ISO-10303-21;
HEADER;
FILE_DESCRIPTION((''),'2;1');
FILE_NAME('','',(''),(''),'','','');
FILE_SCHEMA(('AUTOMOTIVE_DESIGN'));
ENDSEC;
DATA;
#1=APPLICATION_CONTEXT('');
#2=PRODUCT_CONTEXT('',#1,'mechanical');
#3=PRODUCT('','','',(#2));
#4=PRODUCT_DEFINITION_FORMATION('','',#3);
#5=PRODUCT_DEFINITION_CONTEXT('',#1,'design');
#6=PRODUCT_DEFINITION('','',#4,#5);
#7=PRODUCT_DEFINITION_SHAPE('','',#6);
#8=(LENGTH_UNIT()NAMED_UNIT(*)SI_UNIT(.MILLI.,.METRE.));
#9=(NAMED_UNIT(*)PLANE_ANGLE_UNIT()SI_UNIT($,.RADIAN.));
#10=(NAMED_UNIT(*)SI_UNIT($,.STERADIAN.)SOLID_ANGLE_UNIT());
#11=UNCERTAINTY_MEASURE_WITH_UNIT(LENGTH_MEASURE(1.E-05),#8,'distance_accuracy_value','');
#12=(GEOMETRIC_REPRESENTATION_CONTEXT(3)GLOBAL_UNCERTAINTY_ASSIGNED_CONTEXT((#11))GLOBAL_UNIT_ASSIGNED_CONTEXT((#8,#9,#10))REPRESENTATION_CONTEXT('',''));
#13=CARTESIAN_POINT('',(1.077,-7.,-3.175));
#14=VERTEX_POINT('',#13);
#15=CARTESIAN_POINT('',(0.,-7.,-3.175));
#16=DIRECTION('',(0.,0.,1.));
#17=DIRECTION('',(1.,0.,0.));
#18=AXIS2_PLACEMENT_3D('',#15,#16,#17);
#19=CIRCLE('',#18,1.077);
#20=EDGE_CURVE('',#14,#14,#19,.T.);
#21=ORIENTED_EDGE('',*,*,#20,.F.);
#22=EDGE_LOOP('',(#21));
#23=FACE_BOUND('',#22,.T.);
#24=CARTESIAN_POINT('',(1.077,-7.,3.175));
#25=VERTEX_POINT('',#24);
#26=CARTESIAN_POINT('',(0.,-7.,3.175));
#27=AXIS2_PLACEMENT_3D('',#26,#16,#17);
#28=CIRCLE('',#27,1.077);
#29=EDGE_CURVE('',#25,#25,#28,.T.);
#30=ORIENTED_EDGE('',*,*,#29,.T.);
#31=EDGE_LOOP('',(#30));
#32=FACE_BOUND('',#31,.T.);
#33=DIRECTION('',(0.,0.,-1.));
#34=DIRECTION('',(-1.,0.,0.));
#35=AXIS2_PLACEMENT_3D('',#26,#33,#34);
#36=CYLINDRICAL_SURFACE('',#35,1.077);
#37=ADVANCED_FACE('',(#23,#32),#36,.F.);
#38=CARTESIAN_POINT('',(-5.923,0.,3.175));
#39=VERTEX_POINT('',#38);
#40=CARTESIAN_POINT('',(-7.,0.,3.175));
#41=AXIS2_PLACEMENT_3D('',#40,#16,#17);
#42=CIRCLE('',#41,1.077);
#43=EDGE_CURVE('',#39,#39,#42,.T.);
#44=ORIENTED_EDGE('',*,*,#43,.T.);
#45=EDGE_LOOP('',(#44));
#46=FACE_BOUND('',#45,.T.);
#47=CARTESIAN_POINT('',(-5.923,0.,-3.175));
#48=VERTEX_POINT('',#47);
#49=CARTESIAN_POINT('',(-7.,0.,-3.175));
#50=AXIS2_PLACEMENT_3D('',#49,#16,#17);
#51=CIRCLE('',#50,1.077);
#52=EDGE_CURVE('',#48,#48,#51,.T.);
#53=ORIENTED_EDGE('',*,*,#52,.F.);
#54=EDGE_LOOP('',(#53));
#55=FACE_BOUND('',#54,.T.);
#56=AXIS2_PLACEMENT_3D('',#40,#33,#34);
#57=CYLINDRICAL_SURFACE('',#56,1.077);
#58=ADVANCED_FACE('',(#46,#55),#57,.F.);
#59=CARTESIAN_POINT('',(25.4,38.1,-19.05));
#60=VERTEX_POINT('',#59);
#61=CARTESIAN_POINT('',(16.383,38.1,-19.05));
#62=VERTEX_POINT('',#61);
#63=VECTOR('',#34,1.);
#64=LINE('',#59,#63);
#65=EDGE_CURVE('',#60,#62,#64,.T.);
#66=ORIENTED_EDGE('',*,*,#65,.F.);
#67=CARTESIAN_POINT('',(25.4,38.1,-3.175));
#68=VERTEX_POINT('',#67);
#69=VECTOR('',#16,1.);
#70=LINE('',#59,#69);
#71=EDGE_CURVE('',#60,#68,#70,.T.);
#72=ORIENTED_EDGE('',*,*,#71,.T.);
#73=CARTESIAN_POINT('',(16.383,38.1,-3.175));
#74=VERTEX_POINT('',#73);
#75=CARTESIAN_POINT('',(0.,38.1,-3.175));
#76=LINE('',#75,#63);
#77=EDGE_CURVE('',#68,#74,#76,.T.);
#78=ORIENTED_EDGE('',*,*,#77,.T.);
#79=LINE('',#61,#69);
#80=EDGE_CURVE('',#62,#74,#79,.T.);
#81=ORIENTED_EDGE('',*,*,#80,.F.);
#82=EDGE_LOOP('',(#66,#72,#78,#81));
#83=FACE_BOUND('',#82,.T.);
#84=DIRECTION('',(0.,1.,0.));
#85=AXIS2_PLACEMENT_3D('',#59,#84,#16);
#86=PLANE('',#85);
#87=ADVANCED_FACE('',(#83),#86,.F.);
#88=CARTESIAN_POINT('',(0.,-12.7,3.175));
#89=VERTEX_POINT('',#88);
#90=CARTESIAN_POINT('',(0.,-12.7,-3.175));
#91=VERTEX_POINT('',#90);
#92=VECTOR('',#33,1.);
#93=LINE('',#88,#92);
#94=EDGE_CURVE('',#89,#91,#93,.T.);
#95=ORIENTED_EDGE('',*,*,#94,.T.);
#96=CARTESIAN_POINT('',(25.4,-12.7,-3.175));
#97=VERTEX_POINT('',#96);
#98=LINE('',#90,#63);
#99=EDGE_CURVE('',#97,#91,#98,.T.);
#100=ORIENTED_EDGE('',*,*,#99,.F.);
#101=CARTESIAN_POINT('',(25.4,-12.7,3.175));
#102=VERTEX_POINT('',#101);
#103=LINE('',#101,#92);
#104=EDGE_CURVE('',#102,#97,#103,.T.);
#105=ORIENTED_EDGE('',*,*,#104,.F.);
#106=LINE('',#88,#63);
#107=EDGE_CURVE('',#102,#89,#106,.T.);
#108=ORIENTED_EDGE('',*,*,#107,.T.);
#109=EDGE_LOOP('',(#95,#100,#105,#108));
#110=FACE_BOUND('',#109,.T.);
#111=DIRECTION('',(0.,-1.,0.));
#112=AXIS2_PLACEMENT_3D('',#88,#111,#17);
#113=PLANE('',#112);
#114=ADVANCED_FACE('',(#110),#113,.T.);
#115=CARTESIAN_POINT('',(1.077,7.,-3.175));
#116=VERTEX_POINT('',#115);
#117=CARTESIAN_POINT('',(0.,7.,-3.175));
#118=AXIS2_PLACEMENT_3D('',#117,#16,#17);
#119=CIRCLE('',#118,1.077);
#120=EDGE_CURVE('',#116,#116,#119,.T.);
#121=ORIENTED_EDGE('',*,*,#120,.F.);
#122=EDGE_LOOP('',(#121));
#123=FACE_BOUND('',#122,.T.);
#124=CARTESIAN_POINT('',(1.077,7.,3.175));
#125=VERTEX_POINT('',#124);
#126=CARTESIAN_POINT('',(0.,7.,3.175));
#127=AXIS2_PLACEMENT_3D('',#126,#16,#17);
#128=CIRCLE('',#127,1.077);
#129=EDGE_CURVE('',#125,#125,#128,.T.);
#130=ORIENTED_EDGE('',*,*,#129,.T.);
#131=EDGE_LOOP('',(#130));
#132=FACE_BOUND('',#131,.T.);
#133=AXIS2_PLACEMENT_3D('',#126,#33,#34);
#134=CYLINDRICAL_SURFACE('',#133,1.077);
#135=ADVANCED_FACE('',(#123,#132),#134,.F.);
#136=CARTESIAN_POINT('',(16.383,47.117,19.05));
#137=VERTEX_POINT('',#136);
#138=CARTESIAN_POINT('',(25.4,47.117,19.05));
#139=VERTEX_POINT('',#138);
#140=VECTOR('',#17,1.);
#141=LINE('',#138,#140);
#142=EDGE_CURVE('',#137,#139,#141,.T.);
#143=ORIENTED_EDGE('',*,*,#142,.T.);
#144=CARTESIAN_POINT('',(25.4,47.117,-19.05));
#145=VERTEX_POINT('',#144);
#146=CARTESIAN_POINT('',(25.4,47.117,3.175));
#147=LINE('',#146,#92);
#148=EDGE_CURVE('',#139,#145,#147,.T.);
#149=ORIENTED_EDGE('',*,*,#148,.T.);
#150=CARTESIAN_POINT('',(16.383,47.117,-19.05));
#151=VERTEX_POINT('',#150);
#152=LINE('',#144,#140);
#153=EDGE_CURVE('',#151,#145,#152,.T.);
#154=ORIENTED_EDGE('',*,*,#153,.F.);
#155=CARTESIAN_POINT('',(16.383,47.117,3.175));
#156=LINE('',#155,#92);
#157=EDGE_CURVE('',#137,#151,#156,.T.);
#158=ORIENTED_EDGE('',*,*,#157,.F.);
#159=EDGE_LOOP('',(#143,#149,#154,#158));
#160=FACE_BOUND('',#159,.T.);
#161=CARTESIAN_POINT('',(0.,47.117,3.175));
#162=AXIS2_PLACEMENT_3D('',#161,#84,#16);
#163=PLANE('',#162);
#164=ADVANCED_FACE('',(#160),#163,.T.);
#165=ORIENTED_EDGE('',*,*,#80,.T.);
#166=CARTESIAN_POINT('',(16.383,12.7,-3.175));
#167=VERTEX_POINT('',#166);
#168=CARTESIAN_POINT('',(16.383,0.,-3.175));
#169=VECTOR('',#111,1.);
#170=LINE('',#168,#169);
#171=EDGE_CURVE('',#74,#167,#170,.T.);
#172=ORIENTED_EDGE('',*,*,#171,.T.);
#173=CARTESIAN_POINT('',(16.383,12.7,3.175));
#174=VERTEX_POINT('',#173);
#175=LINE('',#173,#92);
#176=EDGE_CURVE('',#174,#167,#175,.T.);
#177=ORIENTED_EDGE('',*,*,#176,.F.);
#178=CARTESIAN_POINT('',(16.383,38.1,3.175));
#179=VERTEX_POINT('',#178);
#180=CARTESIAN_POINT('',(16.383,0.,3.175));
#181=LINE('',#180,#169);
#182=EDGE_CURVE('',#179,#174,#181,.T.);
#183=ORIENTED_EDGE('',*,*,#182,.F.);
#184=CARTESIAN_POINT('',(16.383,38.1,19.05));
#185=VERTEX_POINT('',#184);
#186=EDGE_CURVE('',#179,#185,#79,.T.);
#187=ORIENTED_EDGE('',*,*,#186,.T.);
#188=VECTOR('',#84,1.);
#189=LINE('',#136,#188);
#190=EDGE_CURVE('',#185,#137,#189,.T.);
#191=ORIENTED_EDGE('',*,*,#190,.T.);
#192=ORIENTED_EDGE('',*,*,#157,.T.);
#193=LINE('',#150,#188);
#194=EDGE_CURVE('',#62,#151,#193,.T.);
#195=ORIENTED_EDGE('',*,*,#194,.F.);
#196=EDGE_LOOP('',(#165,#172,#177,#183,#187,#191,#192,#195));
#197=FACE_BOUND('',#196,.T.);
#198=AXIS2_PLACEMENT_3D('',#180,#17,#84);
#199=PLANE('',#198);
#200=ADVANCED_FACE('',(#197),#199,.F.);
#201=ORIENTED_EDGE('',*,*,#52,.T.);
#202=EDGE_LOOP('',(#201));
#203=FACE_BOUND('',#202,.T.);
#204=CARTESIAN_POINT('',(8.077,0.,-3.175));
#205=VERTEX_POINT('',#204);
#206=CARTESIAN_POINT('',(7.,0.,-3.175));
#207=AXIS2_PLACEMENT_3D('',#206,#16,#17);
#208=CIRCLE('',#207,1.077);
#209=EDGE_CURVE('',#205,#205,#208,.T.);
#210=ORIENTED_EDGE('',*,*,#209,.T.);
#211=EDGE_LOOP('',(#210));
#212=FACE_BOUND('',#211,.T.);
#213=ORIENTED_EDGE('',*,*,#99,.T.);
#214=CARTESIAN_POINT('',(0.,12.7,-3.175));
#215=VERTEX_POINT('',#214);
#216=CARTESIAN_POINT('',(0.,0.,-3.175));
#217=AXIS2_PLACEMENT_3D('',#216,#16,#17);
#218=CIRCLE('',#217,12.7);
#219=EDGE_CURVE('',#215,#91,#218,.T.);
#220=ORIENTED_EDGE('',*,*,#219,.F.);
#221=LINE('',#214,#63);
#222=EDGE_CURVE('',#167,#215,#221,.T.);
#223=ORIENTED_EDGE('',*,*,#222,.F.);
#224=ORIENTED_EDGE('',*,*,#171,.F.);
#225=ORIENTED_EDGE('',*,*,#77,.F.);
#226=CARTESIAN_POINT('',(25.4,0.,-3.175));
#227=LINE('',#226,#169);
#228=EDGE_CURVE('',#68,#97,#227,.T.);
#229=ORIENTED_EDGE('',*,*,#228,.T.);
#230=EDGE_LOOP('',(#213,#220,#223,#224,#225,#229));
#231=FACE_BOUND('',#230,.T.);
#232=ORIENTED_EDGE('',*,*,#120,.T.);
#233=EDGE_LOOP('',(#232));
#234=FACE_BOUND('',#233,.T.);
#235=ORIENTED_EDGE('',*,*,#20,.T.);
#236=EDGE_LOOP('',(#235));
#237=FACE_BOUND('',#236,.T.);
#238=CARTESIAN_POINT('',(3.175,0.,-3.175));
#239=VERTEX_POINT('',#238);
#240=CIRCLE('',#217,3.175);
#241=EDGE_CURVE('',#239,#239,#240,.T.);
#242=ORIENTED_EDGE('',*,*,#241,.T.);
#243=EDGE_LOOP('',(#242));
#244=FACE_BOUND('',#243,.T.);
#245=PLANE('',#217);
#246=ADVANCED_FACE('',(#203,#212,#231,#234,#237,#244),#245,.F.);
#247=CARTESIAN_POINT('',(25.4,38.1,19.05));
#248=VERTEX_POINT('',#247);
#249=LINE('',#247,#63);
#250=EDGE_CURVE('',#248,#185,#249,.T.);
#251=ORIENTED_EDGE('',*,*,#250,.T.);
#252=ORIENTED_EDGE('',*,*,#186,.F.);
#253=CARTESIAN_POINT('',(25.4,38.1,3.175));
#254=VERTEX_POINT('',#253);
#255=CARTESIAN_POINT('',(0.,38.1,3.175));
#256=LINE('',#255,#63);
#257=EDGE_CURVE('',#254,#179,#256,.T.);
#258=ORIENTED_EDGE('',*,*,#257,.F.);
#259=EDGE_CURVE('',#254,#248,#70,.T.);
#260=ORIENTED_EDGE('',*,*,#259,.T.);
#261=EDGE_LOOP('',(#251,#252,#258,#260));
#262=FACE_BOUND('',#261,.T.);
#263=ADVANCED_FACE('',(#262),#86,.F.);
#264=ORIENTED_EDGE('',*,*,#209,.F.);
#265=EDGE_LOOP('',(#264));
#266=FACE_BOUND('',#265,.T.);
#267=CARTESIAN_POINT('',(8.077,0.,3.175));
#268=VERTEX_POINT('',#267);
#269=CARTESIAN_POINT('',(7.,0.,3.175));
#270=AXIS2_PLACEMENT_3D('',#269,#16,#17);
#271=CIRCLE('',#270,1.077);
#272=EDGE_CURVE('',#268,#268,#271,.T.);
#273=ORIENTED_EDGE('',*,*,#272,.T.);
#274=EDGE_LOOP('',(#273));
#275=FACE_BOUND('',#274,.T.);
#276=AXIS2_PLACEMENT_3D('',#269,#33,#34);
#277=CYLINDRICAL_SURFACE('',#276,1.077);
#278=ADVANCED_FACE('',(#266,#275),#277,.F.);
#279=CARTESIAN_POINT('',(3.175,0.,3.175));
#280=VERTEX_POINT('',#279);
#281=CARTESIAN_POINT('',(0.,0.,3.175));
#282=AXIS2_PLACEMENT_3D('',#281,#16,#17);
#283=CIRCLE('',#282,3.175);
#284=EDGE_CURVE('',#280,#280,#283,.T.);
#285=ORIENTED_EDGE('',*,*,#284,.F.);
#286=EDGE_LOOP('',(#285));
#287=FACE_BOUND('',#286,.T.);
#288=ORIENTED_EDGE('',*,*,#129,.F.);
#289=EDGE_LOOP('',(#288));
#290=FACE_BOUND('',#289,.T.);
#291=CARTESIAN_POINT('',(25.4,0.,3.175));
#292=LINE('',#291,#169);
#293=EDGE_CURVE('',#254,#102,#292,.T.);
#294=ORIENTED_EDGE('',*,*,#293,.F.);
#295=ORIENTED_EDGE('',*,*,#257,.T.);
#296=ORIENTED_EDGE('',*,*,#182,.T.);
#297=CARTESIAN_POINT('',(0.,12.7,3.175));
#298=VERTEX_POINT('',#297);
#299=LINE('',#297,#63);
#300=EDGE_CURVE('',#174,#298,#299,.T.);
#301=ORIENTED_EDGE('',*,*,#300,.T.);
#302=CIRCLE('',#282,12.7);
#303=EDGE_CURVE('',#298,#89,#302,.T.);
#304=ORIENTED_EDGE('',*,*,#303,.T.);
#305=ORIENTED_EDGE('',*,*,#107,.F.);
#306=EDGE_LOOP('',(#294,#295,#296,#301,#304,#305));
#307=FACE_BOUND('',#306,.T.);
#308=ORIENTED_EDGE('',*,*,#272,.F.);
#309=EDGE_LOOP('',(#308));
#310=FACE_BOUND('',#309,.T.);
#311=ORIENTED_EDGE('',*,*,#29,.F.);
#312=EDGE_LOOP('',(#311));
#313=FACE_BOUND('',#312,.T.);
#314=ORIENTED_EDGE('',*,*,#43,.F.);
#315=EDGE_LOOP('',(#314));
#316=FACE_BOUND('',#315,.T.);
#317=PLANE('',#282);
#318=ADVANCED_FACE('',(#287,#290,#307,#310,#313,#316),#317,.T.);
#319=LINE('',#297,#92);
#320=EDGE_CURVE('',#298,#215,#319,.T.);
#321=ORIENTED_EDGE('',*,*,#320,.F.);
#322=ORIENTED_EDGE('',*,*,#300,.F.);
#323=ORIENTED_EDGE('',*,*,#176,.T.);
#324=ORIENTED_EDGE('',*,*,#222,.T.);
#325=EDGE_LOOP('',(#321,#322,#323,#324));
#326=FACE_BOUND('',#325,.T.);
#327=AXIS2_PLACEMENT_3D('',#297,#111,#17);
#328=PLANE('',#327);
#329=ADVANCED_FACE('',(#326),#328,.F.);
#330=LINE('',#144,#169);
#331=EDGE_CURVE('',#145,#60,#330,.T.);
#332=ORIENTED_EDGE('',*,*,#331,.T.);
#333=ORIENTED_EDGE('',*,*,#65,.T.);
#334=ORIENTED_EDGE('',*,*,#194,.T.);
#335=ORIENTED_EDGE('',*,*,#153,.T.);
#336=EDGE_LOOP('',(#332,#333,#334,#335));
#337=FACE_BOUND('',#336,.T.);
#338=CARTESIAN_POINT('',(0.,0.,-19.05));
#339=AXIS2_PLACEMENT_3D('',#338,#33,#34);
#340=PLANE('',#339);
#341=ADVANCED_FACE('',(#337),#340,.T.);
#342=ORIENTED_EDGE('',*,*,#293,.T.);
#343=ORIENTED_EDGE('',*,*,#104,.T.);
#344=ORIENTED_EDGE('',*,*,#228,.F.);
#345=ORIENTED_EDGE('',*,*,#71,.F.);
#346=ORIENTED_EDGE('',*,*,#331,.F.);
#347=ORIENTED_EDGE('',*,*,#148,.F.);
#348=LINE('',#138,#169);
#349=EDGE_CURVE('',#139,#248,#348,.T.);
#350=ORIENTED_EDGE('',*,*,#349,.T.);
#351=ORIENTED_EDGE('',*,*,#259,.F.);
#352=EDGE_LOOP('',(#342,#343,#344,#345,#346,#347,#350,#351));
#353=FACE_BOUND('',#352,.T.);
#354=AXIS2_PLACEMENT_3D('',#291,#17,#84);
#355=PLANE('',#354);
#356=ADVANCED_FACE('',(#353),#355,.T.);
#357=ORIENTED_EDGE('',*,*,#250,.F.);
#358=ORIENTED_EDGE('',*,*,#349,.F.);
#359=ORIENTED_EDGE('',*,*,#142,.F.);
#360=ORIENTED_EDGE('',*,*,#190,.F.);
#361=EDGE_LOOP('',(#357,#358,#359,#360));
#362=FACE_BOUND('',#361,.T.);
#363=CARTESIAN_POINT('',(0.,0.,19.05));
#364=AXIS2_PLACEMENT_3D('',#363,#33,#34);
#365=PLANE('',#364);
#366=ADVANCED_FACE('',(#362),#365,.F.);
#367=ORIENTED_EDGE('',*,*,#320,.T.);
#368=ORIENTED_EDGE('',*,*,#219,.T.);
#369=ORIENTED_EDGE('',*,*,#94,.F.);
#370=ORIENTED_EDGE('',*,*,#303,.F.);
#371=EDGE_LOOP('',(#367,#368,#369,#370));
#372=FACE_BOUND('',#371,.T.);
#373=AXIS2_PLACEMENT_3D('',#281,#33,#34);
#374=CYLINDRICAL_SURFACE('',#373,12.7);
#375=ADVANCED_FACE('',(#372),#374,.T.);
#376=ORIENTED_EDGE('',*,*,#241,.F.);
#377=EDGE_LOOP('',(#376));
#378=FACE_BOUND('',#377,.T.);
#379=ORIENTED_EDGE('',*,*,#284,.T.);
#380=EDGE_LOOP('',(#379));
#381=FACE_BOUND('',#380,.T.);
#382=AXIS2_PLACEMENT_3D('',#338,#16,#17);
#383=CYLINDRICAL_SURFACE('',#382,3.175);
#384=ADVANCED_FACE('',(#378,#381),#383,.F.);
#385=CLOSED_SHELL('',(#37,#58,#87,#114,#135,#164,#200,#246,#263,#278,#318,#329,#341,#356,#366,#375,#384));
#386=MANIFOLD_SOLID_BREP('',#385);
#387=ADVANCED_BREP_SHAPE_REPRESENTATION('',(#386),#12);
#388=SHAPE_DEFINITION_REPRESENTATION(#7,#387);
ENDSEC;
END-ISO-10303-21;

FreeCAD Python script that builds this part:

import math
import FreeCAD as App
import Part
import Sketcher
Q = App.Units.Quantity

doc = App.newDocument("Part")
body = doc.addObject("PartDesign::Body", "Body")

# Sketch on XY plane
sketch1 = doc.addObject("Sketcher::SketchObject", "Sketch")
body.addObject(sketch1)
sketch1.AttachmentSupport = (doc.XY_Plane, [""])
sketch1.MapMode = "FlatFace"
sketch1.addGeometry([
    Part.LineSegment(App.Vector(25.4, 47.1, 0), App.Vector(16.4, 47.1, 0)),  # 0
    Part.LineSegment(App.Vector(16.4, 47.1, 0), App.Vector(16.4, 12.7, 0)),  # 1
    Part.LineSegment(App.Vector(16.4, 12.7, 0), App.Vector(0, 12.7, 0)),  # 2
    Part.ArcOfCircle(Part.Circle(App.Vector(0, 0, 0), App.Vector(0, 0, 1), 12.7), math.radians(90), math.radians(270)),  # 3
    Part.LineSegment(App.Vector(0, -12.7, 0), App.Vector(25.4, -12.7, 0)),  # 4
    Part.LineSegment(App.Vector(25.4, -12.7, 0), App.Vector(25.4, 47.1, 0)),  # 5
    Part.Circle(App.Vector(0, 7, 0), App.Vector(0, 0, 1), 1.1),  # 6
    Part.Circle(App.Vector(7, 0, 0), App.Vector(0, 0, 1), 1.1),  # 7
    Part.Circle(App.Vector(0, -7, 0), App.Vector(0, 0, 1), 1.1),  # 8
    Part.Circle(App.Vector(-7, 0, 0), App.Vector(0, 0, 1), 1.1),  # 9
], False)
sketch1.addConstraint([
    Sketcher.Constraint("Coincident", 0, 2, 1, 1),
    Sketcher.Constraint("Coincident", 1, 2, 2, 1),
    Sketcher.Constraint("Tangent", 2, 2, 3, 1),
    Sketcher.Constraint("Tangent", 3, 2, 4, 1),
    Sketcher.Constraint("Coincident", 4, 2, 5, 1),
    Sketcher.Constraint("Coincident", 5, 2, 0, 1),
    Sketcher.Constraint("Horizontal", 0),
    Sketcher.Constraint("Vertical", 1),
    Sketcher.Constraint("Horizontal", 2),
    Sketcher.Constraint("Horizontal", 4),
    Sketcher.Constraint("Vertical", 5),
    Sketcher.Constraint("Coincident", 3, 3, -1, 1),
    Sketcher.Constraint("Equal", 6, 7),
    Sketcher.Constraint("Equal", 7, 8),
    Sketcher.Constraint("Equal", 8, 9),
    Sketcher.Constraint("Symmetric", 6, 3, 8, 3, -1, 1),
    Sketcher.Constraint("Symmetric", 7, 3, 9, 3, -1, 1),
    Sketcher.Constraint("PointOnObject", 6, 3, -2),
    Sketcher.Constraint("PointOnObject", 7, 3, -1),
    Sketcher.Constraint("Radius", 3, Q("0.5 in")),
    Sketcher.Constraint("DistanceX", 4, 1, 4, 2, Q("1 in")),
    Sketcher.Constraint("Diameter", 6, 2.154),
    Sketcher.Constraint("DistanceX", 0, 2, 0, 1, Q("0.355 in")),
    Sketcher.Constraint("DistanceY", 1, 2, 1, 1, Q("1.355 in")),
    Sketcher.Constraint("DistanceY", -1, 1, 6, 3, 7.0),
    Sketcher.Constraint("DistanceX", -1, 1, 7, 3, 7.0),
])
pad1 = doc.addObject("PartDesign::Pad", "Pad")
body.addObject(pad1)
pad1.Profile = sketch1
pad1.Length = Q("0.25 in")
pad1.Midplane = True

# Sketch on XY plane
sketch2 = doc.addObject("Sketcher::SketchObject", "Sketch001")
body.addObject(sketch2)
sketch2.AttachmentSupport = (doc.XY_Plane, [""])
sketch2.MapMode = "FlatFace"
sketch2.addGeometry([
    Part.LineSegment(App.Vector(25, 47, 0), App.Vector(25, 38, 0)),
    Part.LineSegment(App.Vector(25, 38, 0), App.Vector(16, 38, 0)),
    Part.LineSegment(App.Vector(16, 38, 0), App.Vector(16, 47, 0)),
    Part.LineSegment(App.Vector(16, 47, 0), App.Vector(25, 47, 0)),
], False)
sketch2.addConstraint([
    Sketcher.Constraint("Coincident", 0, 2, 1, 1),
    Sketcher.Constraint("Coincident", 1, 2, 2, 1),
    Sketcher.Constraint("Coincident", 2, 2, 3, 1),
    Sketcher.Constraint("Coincident", 3, 2, 0, 1),
    Sketcher.Constraint("Vertical", 0),
    Sketcher.Constraint("Horizontal", 1),
    Sketcher.Constraint("Vertical", 2),
    Sketcher.Constraint("Horizontal", 3),
    Sketcher.Constraint("Equal", 3, 0),
    Sketcher.Constraint("DistanceX", -1, 1, 0, 2, Q("1 in")),
    Sketcher.Constraint("DistanceY", -1, 1, 0, 2, Q("1.5 in")),
    Sketcher.Constraint("DistanceX", 1, 2, 1, 1, Q("0.355 in")),
])
pad2 = doc.addObject("PartDesign::Pad", "Pad001")
body.addObject(pad2)
pad2.Profile = sketch2
pad2.Length = Q("1.5 in")
pad2.Midplane = True

# Sketch on XY plane
sketch3 = doc.addObject("Sketcher::SketchObject", "Sketch002")
body.addObject(sketch3)
sketch3.AttachmentSupport = (doc.XY_Plane, [""])
sketch3.MapMode = "FlatFace"
sketch3.AttachmentOffset = App.Placement(App.Vector(0, 0, 0.125 * 25.4), App.Rotation())
sketch3.addGeometry(Part.Circle(App.Vector(0, 0, 0), App.Vector(0, 0, 1), 3.2), False)
sketch3.addConstraint([
    Sketcher.Constraint("Coincident", 0, 3, -1, 1),
    Sketcher.Constraint("Diameter", 0, Q("0.25 in")),
])
pocket1 = doc.addObject("PartDesign::Pocket", "Pocket")
body.addObject(pocket1)
pocket1.Profile = sketch3
pocket1.Type = "ThroughAll"

doc.recompute()
